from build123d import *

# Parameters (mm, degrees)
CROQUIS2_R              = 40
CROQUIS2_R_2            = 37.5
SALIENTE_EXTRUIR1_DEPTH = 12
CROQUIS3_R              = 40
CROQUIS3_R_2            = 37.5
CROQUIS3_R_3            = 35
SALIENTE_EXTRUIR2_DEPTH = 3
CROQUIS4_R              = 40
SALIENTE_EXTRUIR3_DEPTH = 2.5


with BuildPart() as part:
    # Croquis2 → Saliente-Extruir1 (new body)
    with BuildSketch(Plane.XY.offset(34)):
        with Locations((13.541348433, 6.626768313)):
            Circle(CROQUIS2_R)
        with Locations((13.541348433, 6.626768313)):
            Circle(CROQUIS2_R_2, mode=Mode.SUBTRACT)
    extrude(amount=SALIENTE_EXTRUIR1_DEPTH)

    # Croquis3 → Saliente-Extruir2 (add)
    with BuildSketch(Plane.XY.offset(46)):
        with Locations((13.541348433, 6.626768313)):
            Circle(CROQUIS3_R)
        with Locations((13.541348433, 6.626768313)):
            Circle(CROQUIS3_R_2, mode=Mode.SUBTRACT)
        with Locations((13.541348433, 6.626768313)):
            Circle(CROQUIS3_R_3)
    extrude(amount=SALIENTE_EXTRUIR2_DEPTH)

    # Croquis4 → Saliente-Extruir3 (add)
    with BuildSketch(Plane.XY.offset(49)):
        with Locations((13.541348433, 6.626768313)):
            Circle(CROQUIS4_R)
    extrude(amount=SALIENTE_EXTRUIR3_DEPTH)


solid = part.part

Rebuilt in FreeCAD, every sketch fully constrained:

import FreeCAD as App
import Part
import Sketcher

V = App.Vector

doc = App.newDocument("Part")
body = doc.addObject("PartDesign::Body", "Body")
body.AllowCompound = True

# Sketch on XY plane
sketch1 = body.newObject("Sketcher::SketchObject", "Sketch")
sketch1.AttachmentSupport = (doc.getObject("XY_Plane"), [""])
sketch1.MapMode = "FlatFace"
sketch1.AttachmentOffset = App.Placement(V(0, 0, 34), App.Rotation())
sketch1.addGeometry([
    Part.Circle(V(13.541348, 6.626768, 0), V(0, 0, 1), 40),
    Part.Circle(V(13.541348, 6.626768, 0), V(0, 0, 1), 37.5),
], False)
sketch1.addConstraint([
    Sketcher.Constraint("Coincident", 1, 3, 0, 3),
    Sketcher.Constraint("Diameter", 0, 80.0),
    Sketcher.Constraint("Diameter", 1, 75.0),
    Sketcher.Constraint("DistanceX", -1, 1, 0, 3, 13.541348),
    Sketcher.Constraint("DistanceY", -1, 1, 0, 3, 6.626768),
])
pad1 = body.newObject("PartDesign::Pad", "Pad")
pad1.Profile = sketch1
pad1.Length = 12

# Sketch on XY plane
sketch2 = body.newObject("Sketcher::SketchObject", "Sketch001")
sketch2.AttachmentSupport = (doc.getObject("XY_Plane"), [""])
sketch2.MapMode = "FlatFace"
sketch2.AttachmentOffset = App.Placement(V(0, 0, 46), App.Rotation())
sketch2.addGeometry([
    Part.Circle(V(13.541348, 6.626768, 0), V(0, 0, 1), 40),
    Part.Circle(V(13.541348, 6.626768, 0), V(0, 0, 1), 37.5),
    Part.Circle(V(13.541348, 6.626768, 0), V(0, 0, 1), 35),
], False)
sketch2.addConstraint([
    Sketcher.Constraint("Coincident", 1, 3, 0, 3),
    Sketcher.Constraint("Coincident", 2, 3, 0, 3),
    Sketcher.Constraint("Diameter", 0, 80.0),
    Sketcher.Constraint("Diameter", 1, 75.0),
    Sketcher.Constraint("Diameter", 2, 70.0),
    Sketcher.Constraint("DistanceX", -1, 1, 0, 3, 13.541348),
    Sketcher.Constraint("DistanceY", -1, 1, 0, 3, 6.626768),
])
pad2 = body.newObject("PartDesign::Pad", "Pad001")
pad2.Profile = sketch2
pad2.Length = 3

# Sketch on XY plane
sketch3 = body.newObject("Sketcher::SketchObject", "Sketch002")
sketch3.AttachmentSupport = (doc.getObject("XY_Plane"), [""])
sketch3.MapMode = "FlatFace"
sketch3.AttachmentOffset = App.Placement(V(0, 0, 49), App.Rotation())
sketch3.addGeometry(Part.Circle(V(13.541348, 6.626768, 0), V(0, 0, 1), 40), False)
sketch3.addConstraint([
    Sketcher.Constraint("Diameter", 0, 80.0),
    Sketcher.Constraint("DistanceX", -1, 1, 0, 3, 13.541348),
    Sketcher.Constraint("DistanceY", -1, 1, 0, 3, 6.626768),
])
pad3 = body.newObject("PartDesign::Pad", "Pad002")
pad3.Profile = sketch3
pad3.Length = 2.5

doc.recompute()
